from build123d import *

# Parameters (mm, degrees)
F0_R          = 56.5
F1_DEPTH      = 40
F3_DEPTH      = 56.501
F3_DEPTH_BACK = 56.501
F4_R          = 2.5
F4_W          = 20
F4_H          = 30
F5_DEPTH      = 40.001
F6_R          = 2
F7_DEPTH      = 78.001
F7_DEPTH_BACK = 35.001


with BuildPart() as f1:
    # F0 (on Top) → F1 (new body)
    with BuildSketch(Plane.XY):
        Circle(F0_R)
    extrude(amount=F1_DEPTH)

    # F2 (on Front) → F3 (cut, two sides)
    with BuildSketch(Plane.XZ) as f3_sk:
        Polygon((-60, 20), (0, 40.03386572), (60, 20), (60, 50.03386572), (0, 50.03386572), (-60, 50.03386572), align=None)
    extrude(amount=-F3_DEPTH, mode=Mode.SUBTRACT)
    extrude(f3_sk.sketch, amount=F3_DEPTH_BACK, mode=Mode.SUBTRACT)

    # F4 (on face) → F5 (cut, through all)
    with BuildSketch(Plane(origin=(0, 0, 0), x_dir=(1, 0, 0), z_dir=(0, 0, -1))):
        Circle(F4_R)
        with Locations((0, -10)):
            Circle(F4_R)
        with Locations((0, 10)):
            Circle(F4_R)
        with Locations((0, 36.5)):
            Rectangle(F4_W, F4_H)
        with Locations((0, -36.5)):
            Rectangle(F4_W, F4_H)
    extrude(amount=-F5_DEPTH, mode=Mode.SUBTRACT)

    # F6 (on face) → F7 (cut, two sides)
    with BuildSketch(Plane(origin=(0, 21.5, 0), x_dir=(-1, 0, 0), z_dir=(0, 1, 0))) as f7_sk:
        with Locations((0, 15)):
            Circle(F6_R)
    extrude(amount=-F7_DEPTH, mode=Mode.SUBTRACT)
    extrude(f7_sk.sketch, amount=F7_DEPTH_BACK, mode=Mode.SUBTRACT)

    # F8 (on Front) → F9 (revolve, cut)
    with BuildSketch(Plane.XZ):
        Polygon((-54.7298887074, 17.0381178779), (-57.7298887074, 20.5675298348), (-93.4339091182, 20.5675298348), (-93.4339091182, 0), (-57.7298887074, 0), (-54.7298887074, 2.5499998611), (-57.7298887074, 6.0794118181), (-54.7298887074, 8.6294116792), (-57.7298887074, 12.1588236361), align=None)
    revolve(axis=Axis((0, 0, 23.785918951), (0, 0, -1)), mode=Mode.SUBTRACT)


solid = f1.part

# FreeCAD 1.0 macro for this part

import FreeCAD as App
import Part
import Sketcher
from FreeCAD import Vector


def add_polygon(sketch, points):
    """Adds a closed chain of lines whose ends are joined by coincident constraints."""
    first, n = sketch.GeometryCount, len(points)
    for a, b in zip(points, points[1:] + points[:1]):
        sketch.addGeometry(Part.LineSegment(App.Vector(*a, 0), App.Vector(*b, 0)), False)
    for i in range(n):
        sketch.addConstraint(Sketcher.Constraint("Coincident", first + i, 2, first + (i + 1) % n, 1))

doc = App.newDocument("Part")
body = doc.addObject("PartDesign::Body", "Body")

# Sketch on XY plane
sketch1 = body.newObject("Sketcher::SketchObject", "Sketch")
sketch1.AttachmentSupport = (doc.getObject("XY_Plane"), [""])
sketch1.MapMode = "FlatFace"
sketch1.addGeometry(Part.Circle(Vector(0, 0, 0), Vector(0, 0, 1), 56), False)
sketch1.addConstraint(Sketcher.Constraint("Coincident", 0, 3, -1, 1))
sketch1.addConstraint(Sketcher.Constraint("Diameter", 0, 113.0))
pad1 = body.newObject("PartDesign::Pad", "Pad")
pad1.Profile = sketch1
pad1.Length = 40

# Sketch on XZ plane
sketch2 = body.newObject("Sketcher::SketchObject", "Sketch001")
sketch2.AttachmentSupport = (doc.getObject("XZ_Plane"), [""])
sketch2.MapMode = "FlatFace"
add_polygon(sketch2, [(-60, 20), (0, 40), (60, 20), (60, 50), (-60, 50)])  # lines 0-4
sketch2.addConstraint(Sketcher.Constraint("Vertical", 2))
sketch2.addConstraint(Sketcher.Constraint("Horizontal", 3))
sketch2.addConstraint(Sketcher.Constraint("Vertical", 4))
sketch2.addConstraint(Sketcher.Constraint("Symmetric", 1, 2, 4, 2, -2))
sketch2.addConstraint(Sketcher.Constraint("PointOnObject", 0, 2, -2))
sketch2.addConstraint(Sketcher.Constraint("DistanceX", 3, 2, 3, 1, 120.0))
sketch2.addConstraint(Sketcher.Constraint("DistanceY", -1, 1, 1, 2, 20.0))
sketch2.addConstraint(Sketcher.Constraint("DistanceY", 0, 2, 2, 2, 10.0))
sketch2.addConstraint(Sketcher.Constraint("Distance", 0, 63.256271))
pocket1 = body.newObject("PartDesign::Pocket", "Pocket")
pocket1.Profile = sketch2
pocket1.Type = "ThroughAll"
pocket1.Midplane = True

# Sketch on XY plane
sketch3 = body.newObject("Sketcher::SketchObject", "Sketch002")
sketch3.AttachmentSupport = (doc.getObject("XY_Plane"), [""])
sketch3.MapMode = "FlatFace"
sketch3.addGeometry(Part.Circle(Vector(0, 0, 0), Vector(0, 0, 1), 2.5), False)  # 0
sketch3.addGeometry(Part.Circle(Vector(0, 10, 0), Vector(0, 0, 1), 2.5), False)  # 1
sketch3.addGeometry(Part.Circle(Vector(0, -10, 0), Vector(0, 0, 1), 2.5), False)  # 2
add_polygon(sketch3, [(-10, -51.5), (-10, -21.5), (10, -21.5), (10, -51.5)])  # lines 3-6
add_polygon(sketch3, [(-10, 21.5), (-10, 51.5), (10, 51.5), (10, 21.5)])  # lines 7-10
sketch3.addConstraint(Sketcher.Constraint("Vertical", 3))
sketch3.addConstraint(Sketcher.Constraint("Horizontal", 4))
sketch3.addConstraint(Sketcher.Constraint("Vertical", 5))
sketch3.addConstraint(Sketcher.Constraint("Horizontal", 6))
sketch3.addConstraint(Sketcher.Constraint("Vertical", 7))
sketch3.addConstraint(Sketcher.Constraint("Horizontal", 8))
sketch3.addConstraint(Sketcher.Constraint("Vertical", 9))
sketch3.addConstraint(Sketcher.Constraint("Horizontal", 10))
sketch3.addConstraint(Sketcher.Constraint("Coincident", 0, 3, -1, 1))
sketch3.addConstraint(Sketcher.Constraint("Equal", 0, 1))
sketch3.addConstraint(Sketcher.Constraint("Equal", 1, 2))
sketch3.addConstraint(Sketcher.Constraint("Symmetric", 1, 3, 2, 3, -1, 1))
sketch3.addConstraint(Sketcher.Constraint("Symmetric", 5, 2, 7, 2, -1, 1))
sketch3.addConstraint(Sketcher.Constraint("Symmetric", 3, 2, 9, 2, -1, 1))
sketch3.addConstraint(Sketcher.Constraint("PointOnObject", 1, 3, -2))
sketch3.addConstraint(Sketcher.Constraint("Vertical", 6, 2, 7, 2))
sketch3.addConstraint(Sketcher.Constraint("Diameter", 0, 5.0))
sketch3.addConstraint(Sketcher.Constraint("DistanceX", 4, 1, 4, 2, 20.0))
sketch3.addConstraint(Sketcher.Constraint("DistanceY", 3, 1, 3, 2, 30.0))
sketch3.addConstraint(Sketcher.Constraint("DistanceY", -1, 1, 1, 3, 10.0))
sketch3.addConstraint(Sketcher.Constraint("DistanceY", 3, 2, 7, 2, 73.0))
pocket2 = body.newObject("PartDesign::Pocket", "Pocket001")
pocket2.Profile = sketch3
pocket2.Type = "ThroughAll"
pocket2.Reversed = True

# Sketch on XZ plane
sketch4 = body.newObject("Sketcher::SketchObject", "Sketch003")
sketch4.AttachmentSupport = (doc.getObject("XZ_Plane"), [""])
sketch4.MapMode = "FlatFace"
sketch4.AttachmentOffset = App.Placement(Vector(0, 0, -21.5), App.Rotation())
sketch4.addGeometry(Part.Circle(Vector(0, 15, 0), Vector(0, 0, 1), 2), False)
sketch4.addConstraint(Sketcher.Constraint("PointOnObject", 0, 3, -2))
sketch4.addConstraint(Sketcher.Constraint("Diameter", 0, 4.0))
sketch4.addConstraint(Sketcher.Constraint("DistanceY", -1, 1, 0, 3, 15.0))
pocket3 = body.newObject("PartDesign::Pocket", "Pocket002")
pocket3.Profile = sketch4
pocket3.Type = "ThroughAll"
pocket3.Midplane = True

# Sketch on XZ plane
sketch5 = body.newObject("Sketcher::SketchObject", "Sketch004")
sketch5.AttachmentSupport = (doc.getObject("XZ_Plane"), [""])
sketch5.MapMode = "FlatFace"
add_polygon(sketch5, [(-54.7, 17), (-57.7, 20.6), (-93.4, 20.6), (-93.4, 0), (-57.7, 0), (-54.7, 2.5), (-57.7, 6.1), (-54.7, 8.6), (-57.7, 12.2)])  # lines 0-8
sketch5.addConstraint(Sketcher.Constraint("Horizontal", 1))
sketch5.addConstraint(Sketcher.Constraint("Vertical", 2))
sketch5.addConstraint(Sketcher.Constraint("Horizontal", 3))
sketch5.addConstraint(Sketcher.Constraint("PointOnObject", 2, 2, -1))
sketch5.addConstraint(Sketcher.Constraint("Perpendicular", 0, 4))
sketch5.addConstraint(Sketcher.Constraint("Perpendicular", 4, 5))
sketch5.addConstraint(Sketcher.Constraint("Perpendicular", 5, 6))
sketch5.addConstraint(Sketcher.Constraint("Perpendicular", 6, 7))
sketch5.addConstraint(Sketcher.Constraint("Vertical", 0, 2, 3, 2))
sketch5.addConstraint(Sketcher.Constraint("Vertical", 3, 2, 5, 2))
sketch5.addConstraint(Sketcher.Constraint("Vertical", 4, 2, 6, 2))
sketch5.addConstraint(Sketcher.Constraint("Vertical", 5, 2, 7, 2))
sketch5.addConstraint(Sketcher.Constraint("Vertical", 6, 2, 8, 2))
sketch5.addConstraint(Sketcher.Constraint("DistanceX", 3, 2, 4, 2, 3.0))
sketch5.addConstraint(Sketcher.Constraint("DistanceY", -1, 1, 4, 2, 2.55))
sketch5.addConstraint(Sketcher.Constraint("DistanceX", 1, 2, 1, 1, 35.70402))
sketch5.addConstraint(Sketcher.Constraint("DistanceY", 2, 2, 2, 1, 20.56753))
sketch5.addConstraint(Sketcher.Constraint("DistanceX", 0, 2, -1, 1, 57.729889))
groove = body.newObject("PartDesign::Groove", "Groove")
groove.Profile = sketch5
groove.ReferenceAxis = (sketch5, ["V_Axis"])
groove.Angle = 360

doc.recompute()
